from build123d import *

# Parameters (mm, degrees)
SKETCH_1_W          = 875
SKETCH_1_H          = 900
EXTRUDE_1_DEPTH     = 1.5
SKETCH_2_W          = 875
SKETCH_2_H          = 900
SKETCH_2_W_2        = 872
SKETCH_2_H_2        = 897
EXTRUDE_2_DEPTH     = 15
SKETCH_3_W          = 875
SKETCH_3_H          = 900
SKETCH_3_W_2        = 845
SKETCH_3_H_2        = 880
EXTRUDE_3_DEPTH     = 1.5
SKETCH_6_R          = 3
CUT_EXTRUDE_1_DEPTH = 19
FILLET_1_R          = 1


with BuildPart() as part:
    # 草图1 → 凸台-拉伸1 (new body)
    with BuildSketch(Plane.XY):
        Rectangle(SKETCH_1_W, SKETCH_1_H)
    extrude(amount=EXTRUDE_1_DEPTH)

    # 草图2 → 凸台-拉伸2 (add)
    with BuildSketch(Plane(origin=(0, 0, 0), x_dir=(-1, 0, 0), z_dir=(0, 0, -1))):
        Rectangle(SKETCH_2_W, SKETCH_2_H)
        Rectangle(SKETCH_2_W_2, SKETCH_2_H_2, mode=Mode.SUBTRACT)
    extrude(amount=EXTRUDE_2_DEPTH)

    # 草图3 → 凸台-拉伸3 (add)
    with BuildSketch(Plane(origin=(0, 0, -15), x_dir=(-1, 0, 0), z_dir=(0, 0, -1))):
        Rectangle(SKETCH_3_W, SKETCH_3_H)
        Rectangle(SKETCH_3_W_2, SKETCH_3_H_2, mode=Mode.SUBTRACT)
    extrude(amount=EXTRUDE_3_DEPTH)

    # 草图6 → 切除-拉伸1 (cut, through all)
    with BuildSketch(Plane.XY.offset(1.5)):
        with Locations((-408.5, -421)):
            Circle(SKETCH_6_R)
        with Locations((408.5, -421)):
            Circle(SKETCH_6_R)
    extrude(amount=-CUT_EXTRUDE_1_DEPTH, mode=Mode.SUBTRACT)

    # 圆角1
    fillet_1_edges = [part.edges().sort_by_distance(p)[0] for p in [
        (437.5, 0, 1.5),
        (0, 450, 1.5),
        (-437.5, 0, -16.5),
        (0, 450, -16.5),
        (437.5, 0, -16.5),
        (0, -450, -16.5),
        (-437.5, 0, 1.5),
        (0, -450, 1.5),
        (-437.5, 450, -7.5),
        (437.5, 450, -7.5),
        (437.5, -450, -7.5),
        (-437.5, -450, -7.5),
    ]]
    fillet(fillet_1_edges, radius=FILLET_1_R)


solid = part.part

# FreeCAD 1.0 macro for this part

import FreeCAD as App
import Part
import Sketcher


def edges_at(feature, points):
    """Names of the edges that pass closest to the given points."""
    edges = feature.Shape.Edges
    near = lambda p: min(range(len(edges)), key=lambda i: edges[i].distToShape(Part.Vertex(*p))[0])
    return sorted({f"Edge{near(p) + 1}" for p in points})


def add_polygon(sketch, points):
    """Adds a closed chain of lines whose ends are joined by coincident constraints."""
    first, n = sketch.GeometryCount, len(points)
    for a, b in zip(points, points[1:] + points[:1]):
        sketch.addGeometry(Part.LineSegment(App.Vector(*a, 0), App.Vector(*b, 0)), False)
    for i in range(n):
        sketch.addConstraint(Sketcher.Constraint("Coincident", first + i, 2, first + (i + 1) % n, 1))

doc = App.newDocument("Part")
body = doc.addObject("PartDesign::Body", "Body")

# Sketch on XY plane
sketch1 = body.newObject("Sketcher::SketchObject", "Sketch")
sketch1.AttachmentSupport = (doc.getObject("XY_Plane"), [""])
sketch1.MapMode = "FlatFace"
add_polygon(sketch1, [(-438, 450), (-438, -450), (438, -450), (438, 450)])  # lines 0-3
sketch1.addConstraint([
    Sketcher.Constraint("Vertical", 0),
    Sketcher.Constraint("Horizontal", 1),
    Sketcher.Constraint("Vertical", 2),
    Sketcher.Constraint("Horizontal", 3),
    Sketcher.Constraint("Symmetric", 0, 2, 2, 2, -1, 1),
    Sketcher.Constraint("DistanceX", 1, 1, 1, 2, 875.0),
    Sketcher.Constraint("DistanceY", 0, 2, 0, 1, 900.0),
])
pad1 = body.newObject("PartDesign::Pad", "Pad")
pad1.Profile = sketch1
pad1.Length = 1.5

# Sketch on XY plane
sketch2 = body.newObject("Sketcher::SketchObject", "Sketch001")
sketch2.AttachmentSupport = (doc.getObject("XY_Plane"), [""])
sketch2.MapMode = "FlatFace"
add_polygon(sketch2, [(438, 450), (438, -450), (-438, -450), (-438, 450)])  # lines 0-3
add_polygon(sketch2, [(-436, -448), (436, -448), (436, 448), (-436, 448)])  # lines 4-7
sketch2.addConstraint([
    Sketcher.Constraint("Vertical", 0),
    Sketcher.Constraint("Horizontal", 1),
    Sketcher.Constraint("Vertical", 2),
    Sketcher.Constraint("Horizontal", 3),
    Sketcher.Constraint("Horizontal", 4),
    Sketcher.Constraint("Vertical", 5),
    Sketcher.Constraint("Horizontal", 6),
    Sketcher.Constraint("Vertical", 7),
    Sketcher.Constraint("Symmetric", 0, 2, 2, 2, -1, 1),
    Sketcher.Constraint("Symmetric", 4, 2, 6, 2, -1, 1),
    Sketcher.Constraint("DistanceX", 1, 2, 1, 1, 875.0),
    Sketcher.Constraint("DistanceX", 4, 1, 4, 2, 872.0),
    Sketcher.Constraint("DistanceY", 0, 2, 0, 1, 900.0),
    Sketcher.Constraint("DistanceY", 5, 1, 5, 2, 897.0),
])
pad2 = body.newObject("PartDesign::Pad", "Pad001")
pad2.Profile = sketch2
pad2.Length = 15
pad2.Reversed = True

# Sketch on XY plane
sketch3 = body.newObject("Sketcher::SketchObject", "Sketch002")
sketch3.AttachmentSupport = (doc.getObject("XY_Plane"), [""])
sketch3.MapMode = "FlatFace"
sketch3.AttachmentOffset = App.Placement(App.Vector(0, 0, -15), App.Rotation())
add_polygon(sketch3, [(438, 450), (438, -450), (-438, -450), (-438, 450)])  # lines 0-3
add_polygon(sketch3, [(-422, -440), (422, -440), (422, 440), (-422, 440)])  # lines 4-7
sketch3.addConstraint([
    Sketcher.Constraint("Vertical", 0),
    Sketcher.Constraint("Horizontal", 1),
    Sketcher.Constraint("Vertical", 2),
    Sketcher.Constraint("Horizontal", 3),
    Sketcher.Constraint("Horizontal", 4),
    Sketcher.Constraint("Vertical", 5),
    Sketcher.Constraint("Horizontal", 6),
    Sketcher.Constraint("Vertical", 7),
    Sketcher.Constraint("Symmetric", 0, 2, 2, 2, -1, 1),
    Sketcher.Constraint("Symmetric", 4, 2, 6, 2, -1, 1),
    Sketcher.Constraint("DistanceX", 1, 2, 1, 1, 875.0),
    Sketcher.Constraint("DistanceX", 4, 1, 4, 2, 845.0),
    Sketcher.Constraint("DistanceY", 0, 2, 0, 1, 900.0),
    Sketcher.Constraint("DistanceY", 5, 1, 5, 2, 880.0),
])
pad3 = body.newObject("PartDesign::Pad", "Pad002")
pad3.Profile = sketch3
pad3.Length = 1.5
pad3.Reversed = True

# Sketch on XY plane
sketch4 = body.newObject("Sketcher::SketchObject", "Sketch003")
sketch4.AttachmentSupport = (doc.getObject("XY_Plane"), [""])
sketch4.MapMode = "FlatFace"
sketch4.AttachmentOffset = App.Placement(App.Vector(0, 0, 1.5), App.Rotation())
sketch4.addGeometry([
    Part.Circle(App.Vector(-408.5, -421, 0), App.Vector(0, 0, 1), 3),
    Part.Circle(App.Vector(408.5, -421, 0), App.Vector(0, 0, 1), 3),
], False)
sketch4.addConstraint([
    Sketcher.Constraint("Equal", 0, 1),
    Sketcher.Constraint("Symmetric", 0, 3, 1, 3, -2),
    Sketcher.Constraint("Diameter", 0, 6.0),
    Sketcher.Constraint("DistanceY", 0, 3, -1, 1, 421.0),
    Sketcher.Constraint("DistanceX", 0, 3, 1, 3, 817.0),
])
pocket1 = body.newObject("PartDesign::Pocket", "Pocket")
pocket1.Profile = sketch4
pocket1.Type = "ThroughAll"
doc.recompute()

fillet = body.newObject("PartDesign::Fillet", "Fillet")
fillet.Base = (pocket1, edges_at(pocket1, [
    (437.5, 0, 1.5),
    (0, 450, 1.5),
    (-437.5, 0, -16.5),
    (0, 450, -16.5),
    (437.5, 0, -16.5),
    (0, -450, -16.5),
    (-437.5, 0, 1.5),
    (0, -450, 1.5),
    (-437.5, 450, -7.5),
    (437.5, 450, -7.5),
    (437.5, -450, -7.5),
    (-437.5, -450, -7.5),
]))
fillet.Radius = 1

doc.recompute()
